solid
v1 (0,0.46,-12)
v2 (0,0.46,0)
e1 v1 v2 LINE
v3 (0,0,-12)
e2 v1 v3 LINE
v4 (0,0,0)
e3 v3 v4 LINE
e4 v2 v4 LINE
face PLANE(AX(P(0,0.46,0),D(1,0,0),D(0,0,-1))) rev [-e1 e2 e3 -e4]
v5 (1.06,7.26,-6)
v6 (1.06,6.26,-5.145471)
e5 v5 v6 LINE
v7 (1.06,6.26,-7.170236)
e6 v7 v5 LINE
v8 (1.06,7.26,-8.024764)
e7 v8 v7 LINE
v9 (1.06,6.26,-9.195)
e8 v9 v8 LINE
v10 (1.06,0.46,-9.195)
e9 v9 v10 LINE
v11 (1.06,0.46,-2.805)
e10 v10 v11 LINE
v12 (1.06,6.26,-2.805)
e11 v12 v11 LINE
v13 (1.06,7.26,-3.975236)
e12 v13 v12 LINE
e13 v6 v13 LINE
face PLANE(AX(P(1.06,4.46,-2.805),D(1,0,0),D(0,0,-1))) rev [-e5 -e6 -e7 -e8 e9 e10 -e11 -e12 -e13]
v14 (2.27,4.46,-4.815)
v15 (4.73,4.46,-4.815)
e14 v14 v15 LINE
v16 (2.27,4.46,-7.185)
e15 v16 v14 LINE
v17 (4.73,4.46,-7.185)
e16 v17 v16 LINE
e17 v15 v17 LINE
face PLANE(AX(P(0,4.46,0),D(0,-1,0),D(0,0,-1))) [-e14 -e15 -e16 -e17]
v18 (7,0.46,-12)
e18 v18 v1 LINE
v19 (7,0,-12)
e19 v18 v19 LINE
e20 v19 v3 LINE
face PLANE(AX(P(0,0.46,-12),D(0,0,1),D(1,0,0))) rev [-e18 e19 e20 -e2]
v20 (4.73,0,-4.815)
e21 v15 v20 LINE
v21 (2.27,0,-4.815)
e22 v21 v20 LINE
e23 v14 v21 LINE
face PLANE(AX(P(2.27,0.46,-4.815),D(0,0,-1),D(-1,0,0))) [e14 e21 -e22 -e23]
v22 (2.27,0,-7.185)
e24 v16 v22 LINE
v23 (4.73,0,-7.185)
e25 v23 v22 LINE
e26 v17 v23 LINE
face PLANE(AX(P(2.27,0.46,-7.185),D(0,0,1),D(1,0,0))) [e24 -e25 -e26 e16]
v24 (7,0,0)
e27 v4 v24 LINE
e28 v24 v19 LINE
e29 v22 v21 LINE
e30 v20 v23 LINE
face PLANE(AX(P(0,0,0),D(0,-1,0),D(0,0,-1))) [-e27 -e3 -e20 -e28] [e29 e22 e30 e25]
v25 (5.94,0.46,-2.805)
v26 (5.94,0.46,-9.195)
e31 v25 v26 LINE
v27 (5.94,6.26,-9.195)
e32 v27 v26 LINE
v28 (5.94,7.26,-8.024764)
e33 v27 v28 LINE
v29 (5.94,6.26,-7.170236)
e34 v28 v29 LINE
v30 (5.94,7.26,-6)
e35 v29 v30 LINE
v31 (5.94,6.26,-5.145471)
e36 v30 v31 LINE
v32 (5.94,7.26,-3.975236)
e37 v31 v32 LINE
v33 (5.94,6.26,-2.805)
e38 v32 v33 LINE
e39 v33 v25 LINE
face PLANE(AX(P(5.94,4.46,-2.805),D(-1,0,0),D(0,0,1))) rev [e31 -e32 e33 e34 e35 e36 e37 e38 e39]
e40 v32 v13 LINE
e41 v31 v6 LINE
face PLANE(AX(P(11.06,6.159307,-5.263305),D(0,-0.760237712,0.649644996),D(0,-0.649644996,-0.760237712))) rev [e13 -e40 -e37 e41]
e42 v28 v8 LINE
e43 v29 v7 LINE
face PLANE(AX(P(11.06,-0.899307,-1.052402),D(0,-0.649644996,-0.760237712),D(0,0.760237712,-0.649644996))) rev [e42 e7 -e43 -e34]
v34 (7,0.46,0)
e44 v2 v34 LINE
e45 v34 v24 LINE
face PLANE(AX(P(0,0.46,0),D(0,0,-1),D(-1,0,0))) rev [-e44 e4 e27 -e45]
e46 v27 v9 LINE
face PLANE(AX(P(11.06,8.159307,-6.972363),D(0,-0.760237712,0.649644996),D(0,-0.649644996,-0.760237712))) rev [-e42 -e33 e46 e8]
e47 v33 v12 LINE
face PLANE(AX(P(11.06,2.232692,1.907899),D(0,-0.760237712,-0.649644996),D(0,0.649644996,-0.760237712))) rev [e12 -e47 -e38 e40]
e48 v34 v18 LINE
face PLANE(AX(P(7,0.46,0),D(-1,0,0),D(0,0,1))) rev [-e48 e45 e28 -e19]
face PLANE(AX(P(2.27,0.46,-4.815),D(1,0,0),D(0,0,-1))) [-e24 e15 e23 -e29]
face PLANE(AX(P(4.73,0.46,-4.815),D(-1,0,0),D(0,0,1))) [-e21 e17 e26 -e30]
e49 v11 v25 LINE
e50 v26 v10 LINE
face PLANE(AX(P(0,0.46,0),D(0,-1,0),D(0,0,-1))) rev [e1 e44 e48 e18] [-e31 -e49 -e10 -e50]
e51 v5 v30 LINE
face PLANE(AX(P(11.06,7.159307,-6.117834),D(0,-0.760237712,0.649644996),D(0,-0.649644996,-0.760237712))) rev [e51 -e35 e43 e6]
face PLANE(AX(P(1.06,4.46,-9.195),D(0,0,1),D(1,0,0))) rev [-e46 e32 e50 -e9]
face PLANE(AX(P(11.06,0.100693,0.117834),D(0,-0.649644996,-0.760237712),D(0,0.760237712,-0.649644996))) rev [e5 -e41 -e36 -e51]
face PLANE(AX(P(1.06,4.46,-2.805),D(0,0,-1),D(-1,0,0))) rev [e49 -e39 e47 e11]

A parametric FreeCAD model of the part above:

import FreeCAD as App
import Part
import Sketcher
from FreeCAD import Vector
Q = App.Units.Quantity

doc = App.newDocument("Part")
body = doc.addObject("PartDesign::Body", "Body")

# Sketch on XZ plane
sketch1 = body.newObject("Sketcher::SketchObject", "Sketch")
sketch1.AttachmentSupport = (doc.getObject("XZ_Plane"), [""])
sketch1.MapMode = "FlatFace"
sketch1.addGeometry([
    Part.LineSegment(Vector(0, -12, 0), Vector(0, 0, 0)),  # 0
    Part.LineSegment(Vector(0, 0, 0), Vector(7, 0, 0)),  # 1
    Part.LineSegment(Vector(7, 0, 0), Vector(7, -12, 0)),  # 2
    Part.LineSegment(Vector(7, -12, 0), Vector(0, -12, 0)),  # 3
    Part.LineSegment(Vector(4.7, -4.8, 0), Vector(2.3, -4.8, 0)),  # 4
    Part.LineSegment(Vector(2.3, -4.8, 0), Vector(2.3, -7.2, 0)),  # 5
    Part.LineSegment(Vector(2.3, -7.2, 0), Vector(4.7, -7.2, 0)),  # 6
    Part.LineSegment(Vector(4.7, -7.2, 0), Vector(4.7, -4.8, 0)),  # 7
], False)
sketch1.addConstraint([
    Sketcher.Constraint("Coincident", 0, 2, 1, 1),
    Sketcher.Constraint("Coincident", 1, 2, 2, 1),
    Sketcher.Constraint("Coincident", 2, 2, 3, 1),
    Sketcher.Constraint("Coincident", 3, 2, 0, 1),
    Sketcher.Constraint("Coincident", 4, 2, 5, 1),
    Sketcher.Constraint("Coincident", 5, 2, 6, 1),
    Sketcher.Constraint("Coincident", 6, 2, 7, 1),
    Sketcher.Constraint("Coincident", 7, 2, 4, 1),
    Sketcher.Constraint("Vertical", 0),
    Sketcher.Constraint("Horizontal", 1),
    Sketcher.Constraint("Vertical", 2),
    Sketcher.Constraint("Horizontal", 3),
    Sketcher.Constraint("Horizontal", 4),
    Sketcher.Constraint("Vertical", 5),
    Sketcher.Constraint("Horizontal", 6),
    Sketcher.Constraint("Vertical", 7),
    Sketcher.Constraint("Coincident", 0, 2, -1, 1),
    Sketcher.Constraint("DistanceX", 1, 1, 1, 2, Q("7 mm")),
    Sketcher.Constraint("DistanceY", 0, 1, 0, 2, Q("12 mm")),
    Sketcher.Constraint("DistanceX", 4, 2, 4, 1, Q("2.46 mm")),
    Sketcher.Constraint("DistanceY", 5, 2, 5, 1, Q("2.37 mm")),
    Sketcher.Constraint("DistanceX", -1, 1, 4, 2, Q("2.27 mm")),
    Sketcher.Constraint("DistanceY", 4, 2, -1, 1, Q("4.815 mm")),
])
pad1 = body.newObject("PartDesign::Pad", "Pad")
pad1.Profile = sketch1
pad1.Length = 0.46
pad1.Reversed = True

# Sketch on XZ plane
sketch2 = body.newObject("Sketcher::SketchObject", "Sketch001")
sketch2.AttachmentSupport = (doc.getObject("XZ_Plane"), [""])
sketch2.MapMode = "FlatFace"
sketch2.AttachmentOffset = App.Placement(Vector(0, 0, -0.46), App.Rotation())
sketch2.addGeometry([
    Part.LineSegment(Vector(1.1, -9.2, 0), Vector(1.1, -2.8, 0)),  # 0
    Part.LineSegment(Vector(1.1, -2.8, 0), Vector(5.9, -2.8, 0)),  # 1
    Part.LineSegment(Vector(5.9, -2.8, 0), Vector(5.9, -9.2, 0)),  # 2
    Part.LineSegment(Vector(5.9, -9.2, 0), Vector(1.1, -9.2, 0)),  # 3
    Part.LineSegment(Vector(4.7, -4.8, 0), Vector(2.3, -4.8, 0)),  # 4
    Part.LineSegment(Vector(2.3, -4.8, 0), Vector(2.3, -7.2, 0)),  # 5
    Part.LineSegment(Vector(2.3, -7.2, 0), Vector(4.7, -7.2, 0)),  # 6
    Part.LineSegment(Vector(4.7, -7.2, 0), Vector(4.7, -4.8, 0)),  # 7
], False)
sketch2.addConstraint([
    Sketcher.Constraint("Coincident", 0, 2, 1, 1),
    Sketcher.Constraint("Coincident", 1, 2, 2, 1),
    Sketcher.Constraint("Coincident", 2, 2, 3, 1),
    Sketcher.Constraint("Coincident", 3, 2, 0, 1),
    Sketcher.Constraint("Coincident", 4, 2, 5, 1),
    Sketcher.Constraint("Coincident", 5, 2, 6, 1),
    Sketcher.Constraint("Coincident", 6, 2, 7, 1),
    Sketcher.Constraint("Coincident", 7, 2, 4, 1),
    Sketcher.Constraint("Vertical", 0),
    Sketcher.Constraint("Horizontal", 1),
    Sketcher.Constraint("Vertical", 2),
    Sketcher.Constraint("Horizontal", 3),
    Sketcher.Constraint("Horizontal", 4),
    Sketcher.Constraint("Vertical", 5),
    Sketcher.Constraint("Horizontal", 6),
    Sketcher.Constraint("Vertical", 7),
    Sketcher.Constraint("DistanceX", 1, 1, 1, 2, Q("4.88 mm")),
    Sketcher.Constraint("DistanceX", 4, 2, 4, 1, Q("2.46 mm")),
    Sketcher.Constraint("DistanceY", 0, 1, 0, 2, Q("6.39 mm")),
    Sketcher.Constraint("DistanceY", 5, 2, 5, 1, Q("2.37 mm")),
    Sketcher.Constraint("DistanceX", -1, 1, 0, 2, Q("1.06 mm")),
    Sketcher.Constraint("DistanceX", -1, 1, 4, 2, Q("2.27 mm")),
    Sketcher.Constraint("DistanceY", 4, 2, 0, 2, Q("2.01 mm")),
    Sketcher.Constraint("DistanceY", 0, 2, -1, 1, Q("2.805 mm")),
])
pad2 = body.newObject("PartDesign::Pad", "Pad001")
pad2.Profile = sketch2
pad2.Length = 4
pad2.Reversed = True

# Sketch on XZ plane
sketch3 = body.newObject("Sketcher::SketchObject", "Sketch002")
sketch3.AttachmentSupport = (doc.getObject("XZ_Plane"), [""])
sketch3.MapMode = "FlatFace"
sketch3.AttachmentOffset = App.Placement(Vector(0, 0, -4.46), App.Rotation())
sketch3.addGeometry([
    Part.LineSegment(Vector(1.1, -9.2, 0), Vector(1.1, -2.8, 0)),
    Part.LineSegment(Vector(1.1, -2.8, 0), Vector(5.9, -2.8, 0)),
    Part.LineSegment(Vector(5.9, -2.8, 0), Vector(5.9, -9.2, 0)),
    Part.LineSegment(Vector(5.9, -9.2, 0), Vector(1.1, -9.2, 0)),
], False)
sketch3.addConstraint([
    Sketcher.Constraint("Coincident", 0, 2, 1, 1),
    Sketcher.Constraint("Coincident", 1, 2, 2, 1),
    Sketcher.Constraint("Coincident", 2, 2, 3, 1),
    Sketcher.Constraint("Coincident", 3, 2, 0, 1),
    Sketcher.Constraint("Vertical", 0),
    Sketcher.Constraint("Horizontal", 1),
    Sketcher.Constraint("Vertical", 2),
    Sketcher.Constraint("Horizontal", 3),
    Sketcher.Constraint("DistanceX", 1, 1, 1, 2, Q("4.88 mm")),
    Sketcher.Constraint("DistanceY", 0, 1, 0, 2, Q("6.39 mm")),
    Sketcher.Constraint("DistanceX", -1, 1, 0, 2, Q("1.06 mm")),
    Sketcher.Constraint("DistanceY", 0, 2, -1, 1, Q("2.805 mm")),
])
pad3 = body.newObject("PartDesign::Pad", "Pad002")
pad3.Profile = sketch3
pad3.Length = 2.8
pad3.Reversed = True

# Sketch on YZ plane
sketch4 = body.newObject("Sketcher::SketchObject", "Sketch003")
sketch4.AttachmentSupport = (doc.getObject("YZ_Plane"), [""])
sketch4.MapMode = "FlatFace"
sketch4.AttachmentOffset = App.Placement(Vector(0, 0, 1.06), App.Rotation())
sketch4.addGeometry([
    Part.LineSegment(Vector(7.3, -9.2, 0), Vector(6.3, -9.2, 0)),  # 0
    Part.LineSegment(Vector(6.3, -9.2, 0), Vector(7.3, -8, 0)),  # 1
    Part.LineSegment(Vector(7.3, -8, 0), Vector(7.3, -9.2, 0)),  # 2
    Part.LineSegment(Vector(7.3, -6, 0), Vector(7.3, -8, 0)),  # 3
    Part.LineSegment(Vector(7.3, -8, 0), Vector(6.3, -7.2, 0)),  # 4
    Part.LineSegment(Vector(6.3, -7.2, 0), Vector(7.3, -6, 0)),  # 5
    Part.LineSegment(Vector(7.3, -4, 0), Vector(7.3, -6, 0)),  # 6
    Part.LineSegment(Vector(7.3, -6, 0), Vector(6.3, -5.1, 0)),  # 7
    Part.LineSegment(Vector(6.3, -5.1, 0), Vector(7.3, -4, 0)),  # 8
    Part.LineSegment(Vector(7.3, -2.8, 0), Vector(7.3, -4, 0)),  # 9
    Part.LineSegment(Vector(7.3, -4, 0), Vector(6.3, -2.8, 0)),  # 10
    Part.LineSegment(Vector(6.3, -2.8, 0), Vector(7.3, -2.8, 0)),  # 11
], False)
sketch4.addConstraint([
    Sketcher.Constraint("Coincident", 0, 2, 1, 1),
    Sketcher.Constraint("Coincident", 1, 2, 2, 1),
    Sketcher.Constraint("Coincident", 2, 2, 0, 1),
    Sketcher.Constraint("Coincident", 3, 2, 4, 1),
    Sketcher.Constraint("Coincident", 4, 2, 5, 1),
    Sketcher.Constraint("Coincident", 5, 2, 3, 1),
    Sketcher.Constraint("Coincident", 6, 2, 7, 1),
    Sketcher.Constraint("Coincident", 7, 2, 8, 1),
    Sketcher.Constraint("Coincident", 8, 2, 6, 1),
    Sketcher.Constraint("Coincident", 9, 2, 10, 1),
    Sketcher.Constraint("Coincident", 10, 2, 11, 1),
    Sketcher.Constraint("Coincident", 11, 2, 9, 1),
    Sketcher.Constraint("Horizontal", 0),
    Sketcher.Constraint("Vertical", 2),
    Sketcher.Constraint("Vertical", 3),
    Sketcher.Constraint("Vertical", 6),
    Sketcher.Constraint("Vertical", 9),
    Sketcher.Constraint("Horizontal", 11),
    Sketcher.Constraint("Coincident", 3, 2, 1, 2),
    Sketcher.Constraint("Coincident", 6, 2, 5, 2),
    Sketcher.Constraint("Coincident", 9, 2, 8, 2),
    Sketcher.Constraint("Perpendicular", 1, 4),
    Sketcher.Constraint("Perpendicular", 4, 5),
    Sketcher.Constraint("Perpendicular", 5, 7),
    Sketcher.Constraint("Perpendicular", 7, 8),
    Sketcher.Constraint("Vertical", 0, 2, 4, 2),
    Sketcher.Constraint("Vertical", 4, 2, 7, 2),
    Sketcher.Constraint("Vertical", 7, 2, 10, 2),
    Sketcher.Constraint("Equal", 2, 9),
    Sketcher.Constraint("DistanceX", 0, 2, 0, 1, Q("1 mm")),
    Sketcher.Constraint("DistanceY", 5, 2, -1, 1, Q("6 mm")),
    Sketcher.Constraint("DistanceX", -1, 1, 0, 2, Q("6.26 mm")),
    Sketcher.Constraint("DistanceY", 0, 2, -1, 1, Q("9.195 mm")),
])
pocket1 = body.newObject("PartDesign::Pocket", "Pocket")
pocket1.Profile = sketch4
pocket1.Length = 10
pocket1.Reversed = True

doc.recompute()
